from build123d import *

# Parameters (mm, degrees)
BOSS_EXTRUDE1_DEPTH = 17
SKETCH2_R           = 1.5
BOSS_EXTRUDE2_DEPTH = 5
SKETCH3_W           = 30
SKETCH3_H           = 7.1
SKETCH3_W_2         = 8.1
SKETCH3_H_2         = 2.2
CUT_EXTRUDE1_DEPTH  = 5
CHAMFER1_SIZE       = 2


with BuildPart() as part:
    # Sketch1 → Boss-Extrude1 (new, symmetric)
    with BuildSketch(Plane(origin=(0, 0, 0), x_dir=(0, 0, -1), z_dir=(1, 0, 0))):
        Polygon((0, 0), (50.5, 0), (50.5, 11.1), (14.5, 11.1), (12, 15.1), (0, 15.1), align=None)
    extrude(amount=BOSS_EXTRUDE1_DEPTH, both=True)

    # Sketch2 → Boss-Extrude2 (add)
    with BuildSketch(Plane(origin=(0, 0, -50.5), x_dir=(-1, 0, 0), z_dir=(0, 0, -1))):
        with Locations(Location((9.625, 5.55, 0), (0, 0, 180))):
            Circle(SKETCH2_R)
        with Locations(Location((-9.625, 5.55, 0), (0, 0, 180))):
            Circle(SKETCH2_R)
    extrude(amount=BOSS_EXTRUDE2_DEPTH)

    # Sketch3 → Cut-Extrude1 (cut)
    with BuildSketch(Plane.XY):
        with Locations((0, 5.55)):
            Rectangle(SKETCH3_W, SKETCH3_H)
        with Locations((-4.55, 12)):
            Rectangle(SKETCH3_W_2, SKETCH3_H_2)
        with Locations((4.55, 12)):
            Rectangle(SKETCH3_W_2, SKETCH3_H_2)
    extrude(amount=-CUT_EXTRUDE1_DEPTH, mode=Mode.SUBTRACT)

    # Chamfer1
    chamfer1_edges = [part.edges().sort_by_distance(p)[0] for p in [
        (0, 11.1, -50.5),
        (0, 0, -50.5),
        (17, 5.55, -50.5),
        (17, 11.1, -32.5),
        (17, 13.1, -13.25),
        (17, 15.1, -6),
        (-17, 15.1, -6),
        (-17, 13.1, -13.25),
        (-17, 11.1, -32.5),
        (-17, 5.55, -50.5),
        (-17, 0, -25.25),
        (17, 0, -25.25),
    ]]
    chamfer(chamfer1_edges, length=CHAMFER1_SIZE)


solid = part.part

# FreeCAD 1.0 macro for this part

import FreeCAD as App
import Part
import Sketcher
from FreeCAD import Vector


def edges_at(feature, points):
    """Names of the edges that pass closest to the given points."""
    edges = feature.Shape.Edges
    near = lambda p: min(range(len(edges)), key=lambda i: edges[i].distToShape(Part.Vertex(*p))[0])
    return sorted({f"Edge{near(p) + 1}" for p in points})


def add_polygon(sketch, points):
    """Adds a closed chain of lines whose ends are joined by coincident constraints."""
    first, n = sketch.GeometryCount, len(points)
    for a, b in zip(points, points[1:] + points[:1]):
        sketch.addGeometry(Part.LineSegment(App.Vector(*a, 0), App.Vector(*b, 0)), False)
    for i in range(n):
        sketch.addConstraint(Sketcher.Constraint("Coincident", first + i, 2, first + (i + 1) % n, 1))

doc = App.newDocument("Part")
body = doc.addObject("PartDesign::Body", "Body")

# Sketch on YZ plane
sketch1 = body.newObject("Sketcher::SketchObject", "Sketch")
sketch1.AttachmentSupport = (doc.getObject("YZ_Plane"), [""])
sketch1.MapMode = "FlatFace"
add_polygon(sketch1, [(0, 0), (0, -50.5), (11.1, -50.5), (11.1, -14.5), (15.1, -12), (15.1, 0)])  # lines 0-5
sketch1.addConstraint(Sketcher.Constraint("Vertical", 0))
sketch1.addConstraint(Sketcher.Constraint("Horizontal", 1))
sketch1.addConstraint(Sketcher.Constraint("Vertical", 2))
sketch1.addConstraint(Sketcher.Constraint("Vertical", 4))
sketch1.addConstraint(Sketcher.Constraint("Horizontal", 5))
sketch1.addConstraint(Sketcher.Constraint("Coincident", 5, 2, -1, 1))
sketch1.addConstraint(Sketcher.Constraint("DistanceY", 2, 1, 2, 2, 36.0))
sketch1.addConstraint(Sketcher.Constraint("DistanceY", 4, 1, 4, 2, 12.0))
sketch1.addConstraint(Sketcher.Constraint("DistanceX", 1, 1, 1, 2, 11.1))
sketch1.addConstraint(Sketcher.Constraint("DistanceX", 5, 2, 5, 1, 15.1))
sketch1.addConstraint(Sketcher.Constraint("DistanceY", 0, 2, 0, 1, 50.5))
pad1 = body.newObject("PartDesign::Pad", "Pad")
pad1.Profile = sketch1
pad1.Length = 34
pad1.Midplane = True

# Sketch on XY plane
sketch2 = body.newObject("Sketcher::SketchObject", "Sketch001")
sketch2.AttachmentSupport = (doc.getObject("XY_Plane"), [""])
sketch2.MapMode = "FlatFace"
sketch2.AttachmentOffset = App.Placement(Vector(0, 0, -50.5), App.Rotation())
sketch2.addGeometry(Part.Circle(Vector(-9.6, 5.5, 0), Vector(0, 0, 1), 1.5), False)
sketch2.addGeometry(Part.Circle(Vector(9.6, 5.5, 0), Vector(0, 0, 1), 1.5), False)
sketch2.addConstraint(Sketcher.Constraint("Equal", 0, 1))
sketch2.addConstraint(Sketcher.Constraint("Symmetric", 0, 3, 1, 3, -2))
sketch2.addConstraint(Sketcher.Constraint("Diameter", 0, 3.0))
sketch2.addConstraint(Sketcher.Constraint("DistanceY", -1, 1, 0, 3, 5.55))
sketch2.addConstraint(Sketcher.Constraint("DistanceX", 0, 3, 1, 3, 19.25))
pad2 = body.newObject("PartDesign::Pad", "Pad001")
pad2.Profile = sketch2
pad2.Length = 5
pad2.Reversed = True

# Sketch on XY plane
sketch3 = body.newObject("Sketcher::SketchObject", "Sketch002")
sketch3.AttachmentSupport = (doc.getObject("XY_Plane"), [""])
sketch3.MapMode = "FlatFace"
add_polygon(sketch3, [(-15, 9.1), (-15, 2), (15, 2), (15, 9.1)])  # lines 0-3
add_polygon(sketch3, [(-8.6, 13.1), (-8.6, 10.9), (-0.5, 10.9), (-0.5, 13.1)])  # lines 4-7
add_polygon(sketch3, [(0.5, 13.1), (0.5, 10.9), (8.6, 10.9), (8.6, 13.1)])  # lines 8-11
sketch3.addConstraint(Sketcher.Constraint("Vertical", 0))
sketch3.addConstraint(Sketcher.Constraint("Horizontal", 1))
sketch3.addConstraint(Sketcher.Constraint("Vertical", 2))
sketch3.addConstraint(Sketcher.Constraint("Horizontal", 3))
sketch3.addConstraint(Sketcher.Constraint("Vertical", 4))
sketch3.addConstraint(Sketcher.Constraint("Horizontal", 5))
sketch3.addConstraint(Sketcher.Constraint("Vertical", 6))
sketch3.addConstraint(Sketcher.Constraint("Horizontal", 7))
sketch3.addConstraint(Sketcher.Constraint("Vertical", 8))
sketch3.addConstraint(Sketcher.Constraint("Horizontal", 9))
sketch3.addConstraint(Sketcher.Constraint("Vertical", 10))
sketch3.addConstraint(Sketcher.Constraint("Horizontal", 11))
sketch3.addConstraint(Sketcher.Constraint("Symmetric", 5, 2, 8, 2, -2))
sketch3.addConstraint(Sketcher.Constraint("Symmetric", 7, 2, 10, 2, -2))
sketch3.addConstraint(Sketcher.Constraint("DistanceX", 1, 1, 1, 2, 30.0))
sketch3.addConstraint(Sketcher.Constraint("DistanceX", 5, 1, 5, 2, 8.1))
sketch3.addConstraint(Sketcher.Constraint("DistanceY", 0, 2, 0, 1, 7.1))
sketch3.addConstraint(Sketcher.Constraint("DistanceY", 4, 2, 4, 1, 2.2))
sketch3.addConstraint(Sketcher.Constraint("DistanceX", 0, 2, -1, 1, 15.0))
sketch3.addConstraint(Sketcher.Constraint("DistanceY", -1, 1, 0, 2, 2.0))
sketch3.addConstraint(Sketcher.Constraint("DistanceY", 3, 2, 6, 2, 4.0))
sketch3.addConstraint(Sketcher.Constraint("DistanceX", 5, 2, 8, 2, 1.0))
pocket1 = body.newObject("PartDesign::Pocket", "Pocket")
pocket1.Profile = sketch3
pocket1.Length = 5
doc.recompute()

chamfer = body.newObject("PartDesign::Chamfer", "Chamfer")
chamfer.Base = (pocket1, edges_at(pocket1, [
    (0, 11.1, -50.5),
    (0, 0, -50.5),
    (17, 5.55, -50.5),
    (17, 11.1, -32.5),
    (17, 13.1, -13.25),
    (17, 15.1, -6),
    (-17, 15.1, -6),
    (-17, 13.1, -13.25),
    (-17, 11.1, -32.5),
    (-17, 5.55, -50.5),
    (-17, 0, -25.25),
    (17, 0, -25.25),
]))
chamfer.Size = 2

doc.recompute()
